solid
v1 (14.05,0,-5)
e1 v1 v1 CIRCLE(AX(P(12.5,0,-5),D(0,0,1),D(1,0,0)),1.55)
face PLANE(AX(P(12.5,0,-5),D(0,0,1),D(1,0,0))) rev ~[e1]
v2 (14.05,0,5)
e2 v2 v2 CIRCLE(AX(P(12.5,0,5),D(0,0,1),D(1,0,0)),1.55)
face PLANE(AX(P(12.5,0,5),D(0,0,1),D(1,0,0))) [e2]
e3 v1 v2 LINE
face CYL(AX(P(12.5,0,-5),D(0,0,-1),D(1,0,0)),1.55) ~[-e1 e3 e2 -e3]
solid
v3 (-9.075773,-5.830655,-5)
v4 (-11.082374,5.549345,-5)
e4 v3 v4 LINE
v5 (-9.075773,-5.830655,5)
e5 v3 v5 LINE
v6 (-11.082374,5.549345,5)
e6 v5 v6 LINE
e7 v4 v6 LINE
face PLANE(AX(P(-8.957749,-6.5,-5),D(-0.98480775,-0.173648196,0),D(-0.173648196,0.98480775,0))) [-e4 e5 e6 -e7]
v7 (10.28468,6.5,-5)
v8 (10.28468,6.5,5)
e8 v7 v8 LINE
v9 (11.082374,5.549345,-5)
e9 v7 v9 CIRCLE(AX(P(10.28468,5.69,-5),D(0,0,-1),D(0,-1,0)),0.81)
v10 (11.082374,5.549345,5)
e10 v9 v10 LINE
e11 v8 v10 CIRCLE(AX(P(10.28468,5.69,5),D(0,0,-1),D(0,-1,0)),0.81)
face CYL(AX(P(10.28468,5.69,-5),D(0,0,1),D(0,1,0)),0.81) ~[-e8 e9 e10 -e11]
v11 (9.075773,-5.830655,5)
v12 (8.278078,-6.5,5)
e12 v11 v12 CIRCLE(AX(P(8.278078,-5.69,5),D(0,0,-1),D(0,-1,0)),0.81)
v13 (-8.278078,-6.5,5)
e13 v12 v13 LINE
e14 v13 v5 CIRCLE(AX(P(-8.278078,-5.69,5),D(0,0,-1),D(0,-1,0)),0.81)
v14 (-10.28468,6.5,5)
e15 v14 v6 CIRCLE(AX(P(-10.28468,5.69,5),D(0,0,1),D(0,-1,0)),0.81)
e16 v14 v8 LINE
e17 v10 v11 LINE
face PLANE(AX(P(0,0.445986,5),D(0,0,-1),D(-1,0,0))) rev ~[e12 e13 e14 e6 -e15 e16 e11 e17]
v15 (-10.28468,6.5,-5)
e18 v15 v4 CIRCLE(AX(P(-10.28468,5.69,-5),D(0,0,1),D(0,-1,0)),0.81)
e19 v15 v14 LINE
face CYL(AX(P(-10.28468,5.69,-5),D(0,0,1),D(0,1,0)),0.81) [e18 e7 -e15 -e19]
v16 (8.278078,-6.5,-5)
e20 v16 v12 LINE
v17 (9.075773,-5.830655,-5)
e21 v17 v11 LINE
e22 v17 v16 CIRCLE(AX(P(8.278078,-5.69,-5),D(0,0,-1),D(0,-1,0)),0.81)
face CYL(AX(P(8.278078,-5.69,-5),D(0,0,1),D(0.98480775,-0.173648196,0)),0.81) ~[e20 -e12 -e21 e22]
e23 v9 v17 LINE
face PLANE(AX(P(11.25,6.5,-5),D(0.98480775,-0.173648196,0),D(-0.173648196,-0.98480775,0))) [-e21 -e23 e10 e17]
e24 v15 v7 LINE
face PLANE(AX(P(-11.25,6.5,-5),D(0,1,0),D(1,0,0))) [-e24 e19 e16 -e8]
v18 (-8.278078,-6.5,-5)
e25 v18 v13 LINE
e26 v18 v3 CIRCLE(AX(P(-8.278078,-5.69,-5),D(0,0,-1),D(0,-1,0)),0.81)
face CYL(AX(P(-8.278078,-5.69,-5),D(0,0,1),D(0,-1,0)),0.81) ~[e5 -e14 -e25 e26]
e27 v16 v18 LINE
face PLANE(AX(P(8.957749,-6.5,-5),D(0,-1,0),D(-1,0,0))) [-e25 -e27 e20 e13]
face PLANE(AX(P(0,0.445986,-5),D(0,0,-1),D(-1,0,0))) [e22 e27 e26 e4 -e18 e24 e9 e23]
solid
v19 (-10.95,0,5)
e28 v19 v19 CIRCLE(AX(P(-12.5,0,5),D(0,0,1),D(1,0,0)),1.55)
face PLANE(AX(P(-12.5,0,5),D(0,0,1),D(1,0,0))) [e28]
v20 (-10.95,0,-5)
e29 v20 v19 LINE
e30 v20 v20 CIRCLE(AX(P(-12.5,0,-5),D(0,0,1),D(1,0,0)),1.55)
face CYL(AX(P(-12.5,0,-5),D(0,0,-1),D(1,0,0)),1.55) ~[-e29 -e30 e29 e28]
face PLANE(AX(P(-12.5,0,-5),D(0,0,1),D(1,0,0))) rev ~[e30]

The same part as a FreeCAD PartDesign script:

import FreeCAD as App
import Part
import Sketcher
from FreeCAD import Vector
Q = App.Units.Quantity


def edges_at(feature, points):
    """Names of the edges that pass closest to the given points."""
    edges = feature.Shape.Edges
    near = lambda p: min(range(len(edges)), key=lambda i: edges[i].distToShape(Part.Vertex(*p))[0])
    return sorted({f"Edge{near(p) + 1}" for p in points})

doc = App.newDocument("Part")
body = doc.addObject("PartDesign::Body", "Body")

sketch1 = body.newObject("Sketcher::SketchObject", "Sketch")
sketch1.AttachmentSupport = (doc.getObject("XY_Plane"), [""])
sketch1.MapMode = "FlatFace"
sketch1.AttachmentOffset = App.Placement(Vector(0, 0, -5), App.Rotation())
sketch1.addGeometry(Part.Circle(Vector(12.5, 0, 0), Vector(0, 0, 1), 1.6), False)
sketch1.addConstraint(Sketcher.Constraint("PointOnObject", 0, 3, -1))
sketch1.addConstraint(Sketcher.Constraint("Diameter", 0, 3.1))
sketch1.addConstraint(Sketcher.Constraint("DistanceX", -1, 1, 0, 3, 12.5))
pad1 = body.newObject("PartDesign::Pad", "Pad")
pad1.Profile = sketch1
pad1.Length = 10
body2 = doc.addObject("PartDesign::Body", "Body001")

sketch2 = body2.newObject("Sketcher::SketchObject", "Sketch001")
sketch2.AttachmentSupport = (doc.getObject("XY_Plane001"), [""])
sketch2.MapMode = "FlatFace"
sketch2.addGeometry(Part.LineSegment(Vector(11, 6, 0), Vector(-11, 6, 0)), False)
sketch2.addGeometry(Part.LineSegment(Vector(-11, 6, 0), Vector(-9, -6, 0)), False)
sketch2.addGeometry(Part.LineSegment(Vector(-9, -6, 0), Vector(9, -6, 0)), False)
sketch2.addGeometry(Part.LineSegment(Vector(9, -6, 0), Vector(11, 6, 0)), False)
sketch2.addConstraint(Sketcher.Constraint("Coincident", 0, 2, 1, 1))
sketch2.addConstraint(Sketcher.Constraint("Coincident", 1, 2, 2, 1))
sketch2.addConstraint(Sketcher.Constraint("Coincident", 2, 2, 3, 1))
sketch2.addConstraint(Sketcher.Constraint("Coincident", 3, 2, 0, 1))
sketch2.addConstraint(Sketcher.Constraint("Horizontal", 0))
sketch2.addConstraint(Sketcher.Constraint("Horizontal", 2))
sketch2.addConstraint(Sketcher.Constraint("Equal", 1, 3))
sketch2.addConstraint(Sketcher.Constraint("Angle", 1, Q("-79.999999 deg")))
sketch2.addConstraint(Sketcher.Constraint("DistanceX", 0, 2, 0, 1, 22.5))
sketch2.addConstraint(Sketcher.Constraint("DistanceY", 1, 2, 0, 2, 13.0))
sketch2.addConstraint(Sketcher.Constraint("DistanceY", -1, 1, 0, 2, 6.5))
sketch2.addConstraint(Sketcher.Constraint("DistanceX", 0, 2, -1, 1, 11.25))
pad2 = body2.newObject("PartDesign::Pad", "Pad001")
pad2.Profile = sketch2
pad2.Length = 10
body3 = doc.addObject("PartDesign::Body", "Body002")
doc.recompute()

body2.Placement = App.Placement(Vector(0, 0, -5), App.Rotation(Vector(0, 0, 1), 0))
boolean = body3.newObject("PartDesign::Boolean", "Boolean")
boolean.Type = "Fuse"
boolean.addObjects([body2])
body4 = doc.addObject("PartDesign::Body", "Body003")
body4.AllowCompound = True

sketch3 = body4.newObject("Sketcher::SketchObject", "Sketch002")
sketch3.AttachmentSupport = (doc.getObject("XY_Plane003"), [""])
sketch3.MapMode = "FlatFace"
sketch3.AttachmentOffset = App.Placement(Vector(0, 0, -5), App.Rotation())
sketch3.addGeometry(Part.Circle(Vector(-12.5, 0, 0), Vector(0, 0, 1), 1.6), False)
sketch3.addConstraint(Sketcher.Constraint("PointOnObject", 0, 3, -1))
sketch3.addConstraint(Sketcher.Constraint("Diameter", 0, 3.1))
sketch3.addConstraint(Sketcher.Constraint("DistanceX", 0, 3, -1, 1, 12.5))
pad3 = body4.newObject("PartDesign::Pad", "Pad002")
pad3.Profile = sketch3
pad3.Length = 10
doc.recompute()

boolean2 = body4.newObject("PartDesign::Boolean", "Boolean001")
boolean2.Type = "Fuse"
boolean2.addObjects([body])
doc.recompute()

boolean3 = body4.newObject("PartDesign::Boolean", "Boolean002")
boolean3.Type = "Fuse"
boolean3.addObjects([body3])
doc.recompute()

fillet = body4.newObject("PartDesign::Fillet", "Fillet")
fillet.Base = (boolean3, edges_at(boolean3, [
    (-11.25, 6.5, 0),
    (11.25, 6.5, 0),
    (8.958, -6.5, 0),
    (-8.958, -6.5, 0),
]))
fillet.Radius = 0.81

doc.recompute()
